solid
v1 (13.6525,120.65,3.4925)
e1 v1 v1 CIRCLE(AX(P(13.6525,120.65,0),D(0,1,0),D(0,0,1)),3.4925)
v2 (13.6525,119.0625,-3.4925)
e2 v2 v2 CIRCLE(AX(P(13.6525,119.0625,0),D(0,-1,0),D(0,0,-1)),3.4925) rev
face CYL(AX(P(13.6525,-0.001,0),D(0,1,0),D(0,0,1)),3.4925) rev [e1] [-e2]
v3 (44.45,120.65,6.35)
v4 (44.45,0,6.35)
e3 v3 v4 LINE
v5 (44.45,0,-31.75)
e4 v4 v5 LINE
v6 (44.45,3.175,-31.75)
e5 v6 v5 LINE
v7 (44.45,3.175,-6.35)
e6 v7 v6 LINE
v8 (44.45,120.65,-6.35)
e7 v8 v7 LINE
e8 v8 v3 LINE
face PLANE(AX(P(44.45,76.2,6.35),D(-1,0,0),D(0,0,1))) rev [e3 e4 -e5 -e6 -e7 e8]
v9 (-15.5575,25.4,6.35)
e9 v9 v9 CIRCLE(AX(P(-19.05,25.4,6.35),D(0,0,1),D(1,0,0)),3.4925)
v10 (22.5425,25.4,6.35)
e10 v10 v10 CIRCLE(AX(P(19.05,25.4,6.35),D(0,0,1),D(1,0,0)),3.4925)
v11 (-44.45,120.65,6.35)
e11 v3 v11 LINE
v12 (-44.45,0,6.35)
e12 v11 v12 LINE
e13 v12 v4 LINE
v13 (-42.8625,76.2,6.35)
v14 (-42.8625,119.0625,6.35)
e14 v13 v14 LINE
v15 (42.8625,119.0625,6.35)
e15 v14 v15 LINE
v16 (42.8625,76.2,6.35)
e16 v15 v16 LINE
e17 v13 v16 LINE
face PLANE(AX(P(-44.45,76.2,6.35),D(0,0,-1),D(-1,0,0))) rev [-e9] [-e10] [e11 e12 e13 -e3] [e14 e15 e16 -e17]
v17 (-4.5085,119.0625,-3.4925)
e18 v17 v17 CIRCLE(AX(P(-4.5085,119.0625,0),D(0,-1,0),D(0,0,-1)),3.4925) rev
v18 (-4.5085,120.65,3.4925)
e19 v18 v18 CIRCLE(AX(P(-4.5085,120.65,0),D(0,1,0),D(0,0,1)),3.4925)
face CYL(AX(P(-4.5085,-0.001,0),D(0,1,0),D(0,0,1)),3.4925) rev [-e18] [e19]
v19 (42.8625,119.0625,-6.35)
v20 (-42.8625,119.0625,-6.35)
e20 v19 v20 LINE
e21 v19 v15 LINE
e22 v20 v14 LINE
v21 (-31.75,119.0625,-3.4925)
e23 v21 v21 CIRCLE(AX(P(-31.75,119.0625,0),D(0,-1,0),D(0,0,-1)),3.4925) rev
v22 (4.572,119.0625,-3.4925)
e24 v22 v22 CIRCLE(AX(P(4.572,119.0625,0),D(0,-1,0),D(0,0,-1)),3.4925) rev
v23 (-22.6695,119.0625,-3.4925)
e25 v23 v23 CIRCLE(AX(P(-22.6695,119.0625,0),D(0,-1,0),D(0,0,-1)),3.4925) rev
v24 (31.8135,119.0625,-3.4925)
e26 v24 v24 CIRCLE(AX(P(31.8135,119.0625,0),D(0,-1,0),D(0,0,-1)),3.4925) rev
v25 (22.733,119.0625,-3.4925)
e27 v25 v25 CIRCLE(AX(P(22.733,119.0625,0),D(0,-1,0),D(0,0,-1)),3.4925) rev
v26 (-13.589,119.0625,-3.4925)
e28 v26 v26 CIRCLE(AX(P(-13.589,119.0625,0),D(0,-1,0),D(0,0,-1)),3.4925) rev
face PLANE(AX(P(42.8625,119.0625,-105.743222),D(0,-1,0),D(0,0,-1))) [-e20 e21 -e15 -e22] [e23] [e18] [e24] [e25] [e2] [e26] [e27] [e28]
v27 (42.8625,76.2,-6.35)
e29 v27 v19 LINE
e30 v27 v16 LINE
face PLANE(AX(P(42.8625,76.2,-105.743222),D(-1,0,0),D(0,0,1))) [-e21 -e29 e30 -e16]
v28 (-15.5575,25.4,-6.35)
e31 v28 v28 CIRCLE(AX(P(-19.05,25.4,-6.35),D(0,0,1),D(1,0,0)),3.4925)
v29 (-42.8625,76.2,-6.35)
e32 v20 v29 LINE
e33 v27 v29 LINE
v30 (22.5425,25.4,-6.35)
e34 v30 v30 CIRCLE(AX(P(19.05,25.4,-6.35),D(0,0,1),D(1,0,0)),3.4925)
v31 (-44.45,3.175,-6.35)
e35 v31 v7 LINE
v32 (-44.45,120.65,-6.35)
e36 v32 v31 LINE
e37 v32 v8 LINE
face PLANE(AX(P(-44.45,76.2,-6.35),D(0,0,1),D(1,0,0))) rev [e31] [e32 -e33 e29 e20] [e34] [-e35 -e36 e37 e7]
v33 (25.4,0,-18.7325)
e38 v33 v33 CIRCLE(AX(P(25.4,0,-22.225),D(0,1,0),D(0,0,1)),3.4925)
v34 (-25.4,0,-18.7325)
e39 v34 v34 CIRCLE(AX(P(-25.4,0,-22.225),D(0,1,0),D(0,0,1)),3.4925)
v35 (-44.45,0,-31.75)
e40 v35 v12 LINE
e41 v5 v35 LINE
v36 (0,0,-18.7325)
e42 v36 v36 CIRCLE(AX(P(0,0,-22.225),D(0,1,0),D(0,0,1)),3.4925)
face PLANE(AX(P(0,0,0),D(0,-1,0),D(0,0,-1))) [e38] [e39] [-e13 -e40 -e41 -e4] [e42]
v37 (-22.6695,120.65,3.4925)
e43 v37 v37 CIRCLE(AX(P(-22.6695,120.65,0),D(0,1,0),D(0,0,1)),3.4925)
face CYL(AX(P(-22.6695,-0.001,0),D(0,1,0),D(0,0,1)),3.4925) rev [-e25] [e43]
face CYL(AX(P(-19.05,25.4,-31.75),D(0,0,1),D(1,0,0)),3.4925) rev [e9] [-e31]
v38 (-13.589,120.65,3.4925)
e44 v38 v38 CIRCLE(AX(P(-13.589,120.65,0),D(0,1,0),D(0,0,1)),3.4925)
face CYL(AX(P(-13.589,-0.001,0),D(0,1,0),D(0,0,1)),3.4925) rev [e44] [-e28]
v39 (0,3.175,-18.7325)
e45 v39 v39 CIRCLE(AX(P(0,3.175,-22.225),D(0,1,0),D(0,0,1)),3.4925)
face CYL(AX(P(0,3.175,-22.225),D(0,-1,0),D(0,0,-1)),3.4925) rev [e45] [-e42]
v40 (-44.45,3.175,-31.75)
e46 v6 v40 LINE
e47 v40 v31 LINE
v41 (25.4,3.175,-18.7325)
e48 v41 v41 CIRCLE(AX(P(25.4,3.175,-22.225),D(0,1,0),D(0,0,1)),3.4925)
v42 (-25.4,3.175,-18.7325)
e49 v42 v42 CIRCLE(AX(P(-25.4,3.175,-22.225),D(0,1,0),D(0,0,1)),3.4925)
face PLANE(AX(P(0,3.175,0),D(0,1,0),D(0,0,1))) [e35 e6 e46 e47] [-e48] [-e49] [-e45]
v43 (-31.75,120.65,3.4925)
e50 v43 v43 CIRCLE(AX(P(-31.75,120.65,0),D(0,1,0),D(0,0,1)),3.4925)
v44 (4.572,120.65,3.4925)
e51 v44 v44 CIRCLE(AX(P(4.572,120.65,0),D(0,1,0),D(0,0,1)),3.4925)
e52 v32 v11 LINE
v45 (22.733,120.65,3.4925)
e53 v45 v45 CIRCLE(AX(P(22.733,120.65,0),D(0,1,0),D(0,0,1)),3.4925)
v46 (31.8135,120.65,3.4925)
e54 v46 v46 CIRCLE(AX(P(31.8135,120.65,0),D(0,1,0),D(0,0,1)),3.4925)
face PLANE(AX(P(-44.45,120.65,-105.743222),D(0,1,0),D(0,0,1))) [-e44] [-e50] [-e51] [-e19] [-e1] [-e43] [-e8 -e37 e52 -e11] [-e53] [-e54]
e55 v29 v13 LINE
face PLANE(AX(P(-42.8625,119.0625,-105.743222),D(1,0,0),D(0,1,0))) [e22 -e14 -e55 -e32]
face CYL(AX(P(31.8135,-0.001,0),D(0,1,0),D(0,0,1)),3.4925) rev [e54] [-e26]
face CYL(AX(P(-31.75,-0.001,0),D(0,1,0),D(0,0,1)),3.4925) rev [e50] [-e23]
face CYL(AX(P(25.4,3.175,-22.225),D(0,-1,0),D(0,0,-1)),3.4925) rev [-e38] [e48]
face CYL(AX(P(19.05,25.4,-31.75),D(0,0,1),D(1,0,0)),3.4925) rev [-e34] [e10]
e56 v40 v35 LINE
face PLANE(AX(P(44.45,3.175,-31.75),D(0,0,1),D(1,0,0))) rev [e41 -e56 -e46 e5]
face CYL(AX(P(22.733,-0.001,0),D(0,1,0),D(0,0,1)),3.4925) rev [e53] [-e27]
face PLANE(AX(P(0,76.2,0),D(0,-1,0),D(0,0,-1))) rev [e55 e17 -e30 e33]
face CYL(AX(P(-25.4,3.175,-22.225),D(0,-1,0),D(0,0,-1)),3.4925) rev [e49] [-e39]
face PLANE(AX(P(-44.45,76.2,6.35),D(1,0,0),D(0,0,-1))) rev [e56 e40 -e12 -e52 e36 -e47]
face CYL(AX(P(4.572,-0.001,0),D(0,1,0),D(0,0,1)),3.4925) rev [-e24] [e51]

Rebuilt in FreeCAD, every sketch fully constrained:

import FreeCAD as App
import Part
import Sketcher
from FreeCAD import Vector
Q = App.Units.Quantity


def add_polygon(sketch, points):
    """Adds a closed chain of lines whose ends are joined by coincident constraints."""
    first, n = sketch.GeometryCount, len(points)
    for a, b in zip(points, points[1:] + points[:1]):
        sketch.addGeometry(Part.LineSegment(App.Vector(*a, 0), App.Vector(*b, 0)), False)
    for i in range(n):
        sketch.addConstraint(Sketcher.Constraint("Coincident", first + i, 2, first + (i + 1) % n, 1))

doc = App.newDocument("Part")
body = doc.addObject("PartDesign::Body", "Body")

sketch1 = body.newObject("Sketcher::SketchObject", "Sketch")
sketch1.AttachmentSupport = (doc.getObject("XZ_Plane"), [""])
sketch1.MapMode = "FlatFace"
add_polygon(sketch1, [(-44.45, -6.35), (-44.45, 6.35), (44.45, 6.35), (44.45, -6.35)])
sketch1.addConstraint(Sketcher.Constraint("Vertical", 0))
sketch1.addConstraint(Sketcher.Constraint("Horizontal", 1))
sketch1.addConstraint(Sketcher.Constraint("Vertical", 2))
sketch1.addConstraint(Sketcher.Constraint("Horizontal", 3))
sketch1.addConstraint(Sketcher.Constraint("Symmetric", 0, 2, 2, 2, -1, 1))
sketch1.addConstraint(Sketcher.Constraint("DistanceX", 1, 1, 1, 2, Q("3.5 in")))
sketch1.addConstraint(Sketcher.Constraint("DistanceY", 0, 1, 0, 2, Q("0.5 in")))
pad1 = body.newObject("PartDesign::Pad", "Pad")
pad1.Profile = sketch1
pad1.Length = Q("3 in")
pad1.Reversed = True

sketch2 = body.newObject("Sketcher::SketchObject", "Sketch001")
sketch2.AttachmentSupport = (doc.getObject("XZ_Plane"), [""])
sketch2.MapMode = "FlatFace"
add_polygon(sketch2, [(-44.45, -6.35), (44.45, -6.35), (44.45, -31.75), (-44.45, -31.75)])
sketch2.addGeometry(Part.Circle(Vector(-25.4, -22.225, 0), Vector(0, 0, 1), 3.4925), False)
sketch2.addGeometry(Part.Circle(Vector(0, -22.225, 0), Vector(0, 0, 1), 3.4925), False)
sketch2.addGeometry(Part.Circle(Vector(25.4, -22.225, 0), Vector(0, 0, 1), 3.4925), False)
sketch2.addConstraint(Sketcher.Constraint("Horizontal", 0))
sketch2.addConstraint(Sketcher.Constraint("Vertical", 1))
sketch2.addConstraint(Sketcher.Constraint("Horizontal", 2))
sketch2.addConstraint(Sketcher.Constraint("Vertical", 3))
sketch2.addConstraint(Sketcher.Constraint("Equal", 4, 5))
sketch2.addConstraint(Sketcher.Constraint("Equal", 5, 6))
sketch2.addConstraint(Sketcher.Constraint("Symmetric", 4, 3, 6, 3, -2))
sketch2.addConstraint(Sketcher.Constraint("PointOnObject", 5, 3, -2))
sketch2.addConstraint(Sketcher.Constraint("Horizontal", 4, 3, 5, 3))
sketch2.addConstraint(Sketcher.Constraint("DistanceY", 1, 2, 1, 1, Q("1 in")))
sketch2.addConstraint(Sketcher.Constraint("Diameter", 4, Q("0.275 in")))
sketch2.addConstraint(Sketcher.Constraint("DistanceX", 0, 1, 0, 2, Q("3.5 in")))
sketch2.addConstraint(Sketcher.Constraint("DistanceX", 4, 3, -1, 1, Q("1 in")))
sketch2.addConstraint(Sketcher.Constraint("DistanceX", -1, 1, 0, 2, Q("1.75 in")))
sketch2.addConstraint(Sketcher.Constraint("DistanceY", 0, 2, -1, 1, Q("0.25 in")))
sketch2.addConstraint(Sketcher.Constraint("DistanceY", 4, 3, -1, 1, Q("0.875 in")))
pad2 = body.newObject("PartDesign::Pad", "Pad001")
pad2.Profile = sketch2
pad2.Length = Q("0.125 in")
pad2.Reversed = True

sketch3 = body.newObject("Sketcher::SketchObject", "Sketch002")
sketch3.AttachmentSupport = (doc.getObject("XY_Plane"), [""])
sketch3.MapMode = "FlatFace"
sketch3.AttachmentOffset = App.Placement(Vector(0, 0, 0.25 * 25.4), App.Rotation())
add_polygon(sketch3, [(-44.45, 120.65), (-44.45, 76.2), (-42.8625, 76.2), (-42.8625, 119.0625), (42.8625, 119.0625), (42.8625, 76.2), (44.45, 76.2), (44.45, 120.65)])
sketch3.addConstraint(Sketcher.Constraint("Vertical", 0))
sketch3.addConstraint(Sketcher.Constraint("Horizontal", 1))
sketch3.addConstraint(Sketcher.Constraint("Vertical", 2))
sketch3.addConstraint(Sketcher.Constraint("Horizontal", 3))
sketch3.addConstraint(Sketcher.Constraint("Vertical", 4))
sketch3.addConstraint(Sketcher.Constraint("Horizontal", 5))
sketch3.addConstraint(Sketcher.Constraint("Vertical", 6))
sketch3.addConstraint(Sketcher.Constraint("Horizontal", 7))
sketch3.addConstraint(Sketcher.Constraint("Symmetric", 1, 2, 4, 2, -2))
sketch3.addConstraint(Sketcher.Constraint("Equal", 1, 5))
sketch3.addConstraint(Sketcher.Constraint("DistanceX", 7, 2, 7, 1, Q("3.5 in")))
sketch3.addConstraint(Sketcher.Constraint("DistanceY", -1, 1, 0, 2, Q("3 in")))
sketch3.addConstraint(Sketcher.Constraint("DistanceY", 0, 2, 0, 1, Q("1.75 in")))
sketch3.addConstraint(Sketcher.Constraint("DistanceX", 1, 1, 1, 2, Q("0.0625 in")))
sketch3.addConstraint(Sketcher.Constraint("DistanceY", 2, 1, 2, 2, Q("1.6875 in")))
pad3 = body.newObject("PartDesign::Pad", "Pad002")
pad3.Profile = sketch3
pad3.Length = Q("0.5 in")
pad3.Reversed = True

sketch4 = body.newObject("Sketcher::SketchObject", "Sketch003")
sketch4.AttachmentSupport = (doc.getObject("XZ_Plane"), [""])
sketch4.MapMode = "FlatFace"
sketch4.AttachmentOffset = App.Placement(Vector(0, 0, -4.75 * 25.4), App.Rotation())
sketch4.addGeometry(Part.Circle(Vector(-31.75, 0, 0), Vector(0, 0, 1), 3.4925), False)
sketch4.addConstraint(Sketcher.Constraint("PointOnObject", 0, 3, -1))
sketch4.addConstraint(Sketcher.Constraint("Diameter", 0, Q("0.275 in")))
sketch4.addConstraint(Sketcher.Constraint("DistanceX", 0, 3, -1, 1, Q("1.25 in")))
pocket1 = body.newObject("PartDesign::Pocket", "Pocket")
pocket1.Profile = sketch4
pocket1.Type = "UpToFirst"
pocket1.Reversed = True

sketch5 = body.newObject("Sketcher::SketchObject", "Sketch004")
sketch5.AttachmentSupport = (doc.getObject("XZ_Plane"), [""])
sketch5.MapMode = "FlatFace"
sketch5.AttachmentOffset = App.Placement(Vector(0, 0, -4.75 * 25.4), App.Rotation())
sketch5.addGeometry(Part.Circle(Vector(-22.6695, 0, 0), Vector(0, 0, 1), 3.4925), False)
sketch5.addConstraint(Sketcher.Constraint("PointOnObject", 0, 3, -1))
sketch5.addConstraint(Sketcher.Constraint("Diameter", 0, Q("0.275 in")))
sketch5.addConstraint(Sketcher.Constraint("DistanceX", 0, 3, -1, 1, Q("0.8925 in")))
pocket2 = body.newObject("PartDesign::Pocket", "Pocket001")
pocket2.Profile = sketch5
pocket2.Type = "UpToFirst"
pocket2.Reversed = True

sketch6 = body.newObject("Sketcher::SketchObject", "Sketch005")
sketch6.AttachmentSupport = (doc.getObject("XZ_Plane"), [""])
sketch6.MapMode = "FlatFace"
sketch6.AttachmentOffset = App.Placement(Vector(0, 0, -4.75 * 25.4), App.Rotation())
sketch6.addGeometry(Part.Circle(Vector(-13.589, 0, 0), Vector(0, 0, 1), 3.4925), False)
sketch6.addConstraint(Sketcher.Constraint("PointOnObject", 0, 3, -1))
sketch6.addConstraint(Sketcher.Constraint("Diameter", 0, Q("0.275 in")))
sketch6.addConstraint(Sketcher.Constraint("DistanceX", 0, 3, -1, 1, Q("0.535 in")))
pocket3 = body.newObject("PartDesign::Pocket", "Pocket002")
pocket3.Profile = sketch6
pocket3.Type = "UpToFirst"
pocket3.Reversed = True

sketch7 = body.newObject("Sketcher::SketchObject", "Sketch006")
sketch7.AttachmentSupport = (doc.getObject("XZ_Plane"), [""])
sketch7.MapMode = "FlatFace"
sketch7.AttachmentOffset = App.Placement(Vector(0, 0, -4.75 * 25.4), App.Rotation())
sketch7.addGeometry(Part.Circle(Vector(-4.5085, 0, 0), Vector(0, 0, 1), 3.4925), False)
sketch7.addConstraint(Sketcher.Constraint("PointOnObject", 0, 3, -1))
sketch7.addConstraint(Sketcher.Constraint("Diameter", 0, Q("0.275 in")))
sketch7.addConstraint(Sketcher.Constraint("DistanceX", 0, 3, -1, 1, Q("0.1775 in")))
pocket4 = body.newObject("PartDesign::Pocket", "Pocket003")
pocket4.Profile = sketch7
pocket4.Type = "UpToFirst"
pocket4.Reversed = True

sketch8 = body.newObject("Sketcher::SketchObject", "Sketch007")
sketch8.AttachmentSupport = (doc.getObject("XZ_Plane"), [""])
sketch8.MapMode = "FlatFace"
sketch8.AttachmentOffset = App.Placement(Vector(0, 0, -4.75 * 25.4), App.Rotation())
sketch8.addGeometry(Part.Circle(Vector(4.572, 0, 0), Vector(0, 0, 1), 3.4925), False)
sketch8.addConstraint(Sketcher.Constraint("PointOnObject", 0, 3, -1))
sketch8.addConstraint(Sketcher.Constraint("Diameter", 0, Q("0.275 in")))
sketch8.addConstraint(Sketcher.Constraint("DistanceX", -1, 1, 0, 3, Q("0.18 in")))
pocket5 = body.newObject("PartDesign::Pocket", "Pocket004")
pocket5.Profile = sketch8
pocket5.Type = "UpToFirst"
pocket5.Reversed = True

sketch9 = body.newObject("Sketcher::SketchObject", "Sketch008")
sketch9.AttachmentSupport = (doc.getObject("XZ_Plane"), [""])
sketch9.MapMode = "FlatFace"
sketch9.AttachmentOffset = App.Placement(Vector(0, 0, -4.75 * 25.4), App.Rotation())
sketch9.addGeometry(Part.Circle(Vector(13.6525, 0, 0), Vector(0, 0, 1), 3.4925), False)
sketch9.addConstraint(Sketcher.Constraint("PointOnObject", 0, 3, -1))
sketch9.addConstraint(Sketcher.Constraint("Diameter", 0, Q("0.275 in")))
sketch9.addConstraint(Sketcher.Constraint("DistanceX", -1, 1, 0, 3, Q("0.5375 in")))
pocket6 = body.newObject("PartDesign::Pocket", "Pocket005")
pocket6.Profile = sketch9
pocket6.Type = "UpToFirst"
pocket6.Reversed = True

sketch10 = body.newObject("Sketcher::SketchObject", "Sketch009")
sketch10.AttachmentSupport = (doc.getObject("XZ_Plane"), [""])
sketch10.MapMode = "FlatFace"
sketch10.AttachmentOffset = App.Placement(Vector(0, 0, -4.75 * 25.4), App.Rotation())
sketch10.addGeometry(Part.Circle(Vector(22.733, 0, 0), Vector(0, 0, 1), 3.4925), False)
sketch10.addConstraint(Sketcher.Constraint("PointOnObject", 0, 3, -1))
sketch10.addConstraint(Sketcher.Constraint("Diameter", 0, Q("0.275 in")))
sketch10.addConstraint(Sketcher.Constraint("DistanceX", -1, 1, 0, 3, Q("0.895 in")))
pocket7 = body.newObject("PartDesign::Pocket", "Pocket006")
pocket7.Profile = sketch10
pocket7.Type = "UpToFirst"
pocket7.Reversed = True

sketch11 = body.newObject("Sketcher::SketchObject", "Sketch010")
sketch11.AttachmentSupport = (doc.getObject("XZ_Plane"), [""])
sketch11.MapMode = "FlatFace"
sketch11.AttachmentOffset = App.Placement(Vector(0, 0, -4.75 * 25.4), App.Rotation())
sketch11.addGeometry(Part.Circle(Vector(31.8135, 0, 0), Vector(0, 0, 1), 3.4925), False)
sketch11.addConstraint(Sketcher.Constraint("PointOnObject", 0, 3, -1))
sketch11.addConstraint(Sketcher.Constraint("Diameter", 0, Q("0.275 in")))
sketch11.addConstraint(Sketcher.Constraint("DistanceX", -1, 1, 0, 3, Q("1.2525 in")))
pocket8 = body.newObject("PartDesign::Pocket", "Pocket007")
pocket8.Profile = sketch11
pocket8.Type = "UpToFirst"
pocket8.Reversed = True

sketch12 = body.newObject("Sketcher::SketchObject", "Sketch011")
sketch12.AttachmentSupport = (doc.getObject("XY_Plane"), [""])
sketch12.MapMode = "FlatFace"
sketch12.addGeometry(Part.Circle(Vector(-19.05, 25.4, 0), Vector(0, 0, 1), 3.4925), False)
sketch12.addGeometry(Part.Circle(Vector(19.05, 25.4, 0), Vector(0, 0, 1), 3.4925), False)
sketch12.addConstraint(Sketcher.Constraint("Equal", 0, 1))
sketch12.addConstraint(Sketcher.Constraint("Symmetric", 0, 3, 1, 3, -2))
sketch12.addConstraint(Sketcher.Constraint("Diameter", 0, Q("0.275 in")))
sketch12.addConstraint(Sketcher.Constraint("DistanceY", -1, 1, 0, 3, Q("1 in")))
sketch12.addConstraint(Sketcher.Constraint("DistanceX", 0, 3, 1, 3, Q("1.5 in")))
pocket9 = body.newObject("PartDesign::Pocket", "Pocket008")
pocket9.Profile = sketch12
pocket9.Type = "ThroughAll"
pocket9.Midplane = True

doc.recompute()
